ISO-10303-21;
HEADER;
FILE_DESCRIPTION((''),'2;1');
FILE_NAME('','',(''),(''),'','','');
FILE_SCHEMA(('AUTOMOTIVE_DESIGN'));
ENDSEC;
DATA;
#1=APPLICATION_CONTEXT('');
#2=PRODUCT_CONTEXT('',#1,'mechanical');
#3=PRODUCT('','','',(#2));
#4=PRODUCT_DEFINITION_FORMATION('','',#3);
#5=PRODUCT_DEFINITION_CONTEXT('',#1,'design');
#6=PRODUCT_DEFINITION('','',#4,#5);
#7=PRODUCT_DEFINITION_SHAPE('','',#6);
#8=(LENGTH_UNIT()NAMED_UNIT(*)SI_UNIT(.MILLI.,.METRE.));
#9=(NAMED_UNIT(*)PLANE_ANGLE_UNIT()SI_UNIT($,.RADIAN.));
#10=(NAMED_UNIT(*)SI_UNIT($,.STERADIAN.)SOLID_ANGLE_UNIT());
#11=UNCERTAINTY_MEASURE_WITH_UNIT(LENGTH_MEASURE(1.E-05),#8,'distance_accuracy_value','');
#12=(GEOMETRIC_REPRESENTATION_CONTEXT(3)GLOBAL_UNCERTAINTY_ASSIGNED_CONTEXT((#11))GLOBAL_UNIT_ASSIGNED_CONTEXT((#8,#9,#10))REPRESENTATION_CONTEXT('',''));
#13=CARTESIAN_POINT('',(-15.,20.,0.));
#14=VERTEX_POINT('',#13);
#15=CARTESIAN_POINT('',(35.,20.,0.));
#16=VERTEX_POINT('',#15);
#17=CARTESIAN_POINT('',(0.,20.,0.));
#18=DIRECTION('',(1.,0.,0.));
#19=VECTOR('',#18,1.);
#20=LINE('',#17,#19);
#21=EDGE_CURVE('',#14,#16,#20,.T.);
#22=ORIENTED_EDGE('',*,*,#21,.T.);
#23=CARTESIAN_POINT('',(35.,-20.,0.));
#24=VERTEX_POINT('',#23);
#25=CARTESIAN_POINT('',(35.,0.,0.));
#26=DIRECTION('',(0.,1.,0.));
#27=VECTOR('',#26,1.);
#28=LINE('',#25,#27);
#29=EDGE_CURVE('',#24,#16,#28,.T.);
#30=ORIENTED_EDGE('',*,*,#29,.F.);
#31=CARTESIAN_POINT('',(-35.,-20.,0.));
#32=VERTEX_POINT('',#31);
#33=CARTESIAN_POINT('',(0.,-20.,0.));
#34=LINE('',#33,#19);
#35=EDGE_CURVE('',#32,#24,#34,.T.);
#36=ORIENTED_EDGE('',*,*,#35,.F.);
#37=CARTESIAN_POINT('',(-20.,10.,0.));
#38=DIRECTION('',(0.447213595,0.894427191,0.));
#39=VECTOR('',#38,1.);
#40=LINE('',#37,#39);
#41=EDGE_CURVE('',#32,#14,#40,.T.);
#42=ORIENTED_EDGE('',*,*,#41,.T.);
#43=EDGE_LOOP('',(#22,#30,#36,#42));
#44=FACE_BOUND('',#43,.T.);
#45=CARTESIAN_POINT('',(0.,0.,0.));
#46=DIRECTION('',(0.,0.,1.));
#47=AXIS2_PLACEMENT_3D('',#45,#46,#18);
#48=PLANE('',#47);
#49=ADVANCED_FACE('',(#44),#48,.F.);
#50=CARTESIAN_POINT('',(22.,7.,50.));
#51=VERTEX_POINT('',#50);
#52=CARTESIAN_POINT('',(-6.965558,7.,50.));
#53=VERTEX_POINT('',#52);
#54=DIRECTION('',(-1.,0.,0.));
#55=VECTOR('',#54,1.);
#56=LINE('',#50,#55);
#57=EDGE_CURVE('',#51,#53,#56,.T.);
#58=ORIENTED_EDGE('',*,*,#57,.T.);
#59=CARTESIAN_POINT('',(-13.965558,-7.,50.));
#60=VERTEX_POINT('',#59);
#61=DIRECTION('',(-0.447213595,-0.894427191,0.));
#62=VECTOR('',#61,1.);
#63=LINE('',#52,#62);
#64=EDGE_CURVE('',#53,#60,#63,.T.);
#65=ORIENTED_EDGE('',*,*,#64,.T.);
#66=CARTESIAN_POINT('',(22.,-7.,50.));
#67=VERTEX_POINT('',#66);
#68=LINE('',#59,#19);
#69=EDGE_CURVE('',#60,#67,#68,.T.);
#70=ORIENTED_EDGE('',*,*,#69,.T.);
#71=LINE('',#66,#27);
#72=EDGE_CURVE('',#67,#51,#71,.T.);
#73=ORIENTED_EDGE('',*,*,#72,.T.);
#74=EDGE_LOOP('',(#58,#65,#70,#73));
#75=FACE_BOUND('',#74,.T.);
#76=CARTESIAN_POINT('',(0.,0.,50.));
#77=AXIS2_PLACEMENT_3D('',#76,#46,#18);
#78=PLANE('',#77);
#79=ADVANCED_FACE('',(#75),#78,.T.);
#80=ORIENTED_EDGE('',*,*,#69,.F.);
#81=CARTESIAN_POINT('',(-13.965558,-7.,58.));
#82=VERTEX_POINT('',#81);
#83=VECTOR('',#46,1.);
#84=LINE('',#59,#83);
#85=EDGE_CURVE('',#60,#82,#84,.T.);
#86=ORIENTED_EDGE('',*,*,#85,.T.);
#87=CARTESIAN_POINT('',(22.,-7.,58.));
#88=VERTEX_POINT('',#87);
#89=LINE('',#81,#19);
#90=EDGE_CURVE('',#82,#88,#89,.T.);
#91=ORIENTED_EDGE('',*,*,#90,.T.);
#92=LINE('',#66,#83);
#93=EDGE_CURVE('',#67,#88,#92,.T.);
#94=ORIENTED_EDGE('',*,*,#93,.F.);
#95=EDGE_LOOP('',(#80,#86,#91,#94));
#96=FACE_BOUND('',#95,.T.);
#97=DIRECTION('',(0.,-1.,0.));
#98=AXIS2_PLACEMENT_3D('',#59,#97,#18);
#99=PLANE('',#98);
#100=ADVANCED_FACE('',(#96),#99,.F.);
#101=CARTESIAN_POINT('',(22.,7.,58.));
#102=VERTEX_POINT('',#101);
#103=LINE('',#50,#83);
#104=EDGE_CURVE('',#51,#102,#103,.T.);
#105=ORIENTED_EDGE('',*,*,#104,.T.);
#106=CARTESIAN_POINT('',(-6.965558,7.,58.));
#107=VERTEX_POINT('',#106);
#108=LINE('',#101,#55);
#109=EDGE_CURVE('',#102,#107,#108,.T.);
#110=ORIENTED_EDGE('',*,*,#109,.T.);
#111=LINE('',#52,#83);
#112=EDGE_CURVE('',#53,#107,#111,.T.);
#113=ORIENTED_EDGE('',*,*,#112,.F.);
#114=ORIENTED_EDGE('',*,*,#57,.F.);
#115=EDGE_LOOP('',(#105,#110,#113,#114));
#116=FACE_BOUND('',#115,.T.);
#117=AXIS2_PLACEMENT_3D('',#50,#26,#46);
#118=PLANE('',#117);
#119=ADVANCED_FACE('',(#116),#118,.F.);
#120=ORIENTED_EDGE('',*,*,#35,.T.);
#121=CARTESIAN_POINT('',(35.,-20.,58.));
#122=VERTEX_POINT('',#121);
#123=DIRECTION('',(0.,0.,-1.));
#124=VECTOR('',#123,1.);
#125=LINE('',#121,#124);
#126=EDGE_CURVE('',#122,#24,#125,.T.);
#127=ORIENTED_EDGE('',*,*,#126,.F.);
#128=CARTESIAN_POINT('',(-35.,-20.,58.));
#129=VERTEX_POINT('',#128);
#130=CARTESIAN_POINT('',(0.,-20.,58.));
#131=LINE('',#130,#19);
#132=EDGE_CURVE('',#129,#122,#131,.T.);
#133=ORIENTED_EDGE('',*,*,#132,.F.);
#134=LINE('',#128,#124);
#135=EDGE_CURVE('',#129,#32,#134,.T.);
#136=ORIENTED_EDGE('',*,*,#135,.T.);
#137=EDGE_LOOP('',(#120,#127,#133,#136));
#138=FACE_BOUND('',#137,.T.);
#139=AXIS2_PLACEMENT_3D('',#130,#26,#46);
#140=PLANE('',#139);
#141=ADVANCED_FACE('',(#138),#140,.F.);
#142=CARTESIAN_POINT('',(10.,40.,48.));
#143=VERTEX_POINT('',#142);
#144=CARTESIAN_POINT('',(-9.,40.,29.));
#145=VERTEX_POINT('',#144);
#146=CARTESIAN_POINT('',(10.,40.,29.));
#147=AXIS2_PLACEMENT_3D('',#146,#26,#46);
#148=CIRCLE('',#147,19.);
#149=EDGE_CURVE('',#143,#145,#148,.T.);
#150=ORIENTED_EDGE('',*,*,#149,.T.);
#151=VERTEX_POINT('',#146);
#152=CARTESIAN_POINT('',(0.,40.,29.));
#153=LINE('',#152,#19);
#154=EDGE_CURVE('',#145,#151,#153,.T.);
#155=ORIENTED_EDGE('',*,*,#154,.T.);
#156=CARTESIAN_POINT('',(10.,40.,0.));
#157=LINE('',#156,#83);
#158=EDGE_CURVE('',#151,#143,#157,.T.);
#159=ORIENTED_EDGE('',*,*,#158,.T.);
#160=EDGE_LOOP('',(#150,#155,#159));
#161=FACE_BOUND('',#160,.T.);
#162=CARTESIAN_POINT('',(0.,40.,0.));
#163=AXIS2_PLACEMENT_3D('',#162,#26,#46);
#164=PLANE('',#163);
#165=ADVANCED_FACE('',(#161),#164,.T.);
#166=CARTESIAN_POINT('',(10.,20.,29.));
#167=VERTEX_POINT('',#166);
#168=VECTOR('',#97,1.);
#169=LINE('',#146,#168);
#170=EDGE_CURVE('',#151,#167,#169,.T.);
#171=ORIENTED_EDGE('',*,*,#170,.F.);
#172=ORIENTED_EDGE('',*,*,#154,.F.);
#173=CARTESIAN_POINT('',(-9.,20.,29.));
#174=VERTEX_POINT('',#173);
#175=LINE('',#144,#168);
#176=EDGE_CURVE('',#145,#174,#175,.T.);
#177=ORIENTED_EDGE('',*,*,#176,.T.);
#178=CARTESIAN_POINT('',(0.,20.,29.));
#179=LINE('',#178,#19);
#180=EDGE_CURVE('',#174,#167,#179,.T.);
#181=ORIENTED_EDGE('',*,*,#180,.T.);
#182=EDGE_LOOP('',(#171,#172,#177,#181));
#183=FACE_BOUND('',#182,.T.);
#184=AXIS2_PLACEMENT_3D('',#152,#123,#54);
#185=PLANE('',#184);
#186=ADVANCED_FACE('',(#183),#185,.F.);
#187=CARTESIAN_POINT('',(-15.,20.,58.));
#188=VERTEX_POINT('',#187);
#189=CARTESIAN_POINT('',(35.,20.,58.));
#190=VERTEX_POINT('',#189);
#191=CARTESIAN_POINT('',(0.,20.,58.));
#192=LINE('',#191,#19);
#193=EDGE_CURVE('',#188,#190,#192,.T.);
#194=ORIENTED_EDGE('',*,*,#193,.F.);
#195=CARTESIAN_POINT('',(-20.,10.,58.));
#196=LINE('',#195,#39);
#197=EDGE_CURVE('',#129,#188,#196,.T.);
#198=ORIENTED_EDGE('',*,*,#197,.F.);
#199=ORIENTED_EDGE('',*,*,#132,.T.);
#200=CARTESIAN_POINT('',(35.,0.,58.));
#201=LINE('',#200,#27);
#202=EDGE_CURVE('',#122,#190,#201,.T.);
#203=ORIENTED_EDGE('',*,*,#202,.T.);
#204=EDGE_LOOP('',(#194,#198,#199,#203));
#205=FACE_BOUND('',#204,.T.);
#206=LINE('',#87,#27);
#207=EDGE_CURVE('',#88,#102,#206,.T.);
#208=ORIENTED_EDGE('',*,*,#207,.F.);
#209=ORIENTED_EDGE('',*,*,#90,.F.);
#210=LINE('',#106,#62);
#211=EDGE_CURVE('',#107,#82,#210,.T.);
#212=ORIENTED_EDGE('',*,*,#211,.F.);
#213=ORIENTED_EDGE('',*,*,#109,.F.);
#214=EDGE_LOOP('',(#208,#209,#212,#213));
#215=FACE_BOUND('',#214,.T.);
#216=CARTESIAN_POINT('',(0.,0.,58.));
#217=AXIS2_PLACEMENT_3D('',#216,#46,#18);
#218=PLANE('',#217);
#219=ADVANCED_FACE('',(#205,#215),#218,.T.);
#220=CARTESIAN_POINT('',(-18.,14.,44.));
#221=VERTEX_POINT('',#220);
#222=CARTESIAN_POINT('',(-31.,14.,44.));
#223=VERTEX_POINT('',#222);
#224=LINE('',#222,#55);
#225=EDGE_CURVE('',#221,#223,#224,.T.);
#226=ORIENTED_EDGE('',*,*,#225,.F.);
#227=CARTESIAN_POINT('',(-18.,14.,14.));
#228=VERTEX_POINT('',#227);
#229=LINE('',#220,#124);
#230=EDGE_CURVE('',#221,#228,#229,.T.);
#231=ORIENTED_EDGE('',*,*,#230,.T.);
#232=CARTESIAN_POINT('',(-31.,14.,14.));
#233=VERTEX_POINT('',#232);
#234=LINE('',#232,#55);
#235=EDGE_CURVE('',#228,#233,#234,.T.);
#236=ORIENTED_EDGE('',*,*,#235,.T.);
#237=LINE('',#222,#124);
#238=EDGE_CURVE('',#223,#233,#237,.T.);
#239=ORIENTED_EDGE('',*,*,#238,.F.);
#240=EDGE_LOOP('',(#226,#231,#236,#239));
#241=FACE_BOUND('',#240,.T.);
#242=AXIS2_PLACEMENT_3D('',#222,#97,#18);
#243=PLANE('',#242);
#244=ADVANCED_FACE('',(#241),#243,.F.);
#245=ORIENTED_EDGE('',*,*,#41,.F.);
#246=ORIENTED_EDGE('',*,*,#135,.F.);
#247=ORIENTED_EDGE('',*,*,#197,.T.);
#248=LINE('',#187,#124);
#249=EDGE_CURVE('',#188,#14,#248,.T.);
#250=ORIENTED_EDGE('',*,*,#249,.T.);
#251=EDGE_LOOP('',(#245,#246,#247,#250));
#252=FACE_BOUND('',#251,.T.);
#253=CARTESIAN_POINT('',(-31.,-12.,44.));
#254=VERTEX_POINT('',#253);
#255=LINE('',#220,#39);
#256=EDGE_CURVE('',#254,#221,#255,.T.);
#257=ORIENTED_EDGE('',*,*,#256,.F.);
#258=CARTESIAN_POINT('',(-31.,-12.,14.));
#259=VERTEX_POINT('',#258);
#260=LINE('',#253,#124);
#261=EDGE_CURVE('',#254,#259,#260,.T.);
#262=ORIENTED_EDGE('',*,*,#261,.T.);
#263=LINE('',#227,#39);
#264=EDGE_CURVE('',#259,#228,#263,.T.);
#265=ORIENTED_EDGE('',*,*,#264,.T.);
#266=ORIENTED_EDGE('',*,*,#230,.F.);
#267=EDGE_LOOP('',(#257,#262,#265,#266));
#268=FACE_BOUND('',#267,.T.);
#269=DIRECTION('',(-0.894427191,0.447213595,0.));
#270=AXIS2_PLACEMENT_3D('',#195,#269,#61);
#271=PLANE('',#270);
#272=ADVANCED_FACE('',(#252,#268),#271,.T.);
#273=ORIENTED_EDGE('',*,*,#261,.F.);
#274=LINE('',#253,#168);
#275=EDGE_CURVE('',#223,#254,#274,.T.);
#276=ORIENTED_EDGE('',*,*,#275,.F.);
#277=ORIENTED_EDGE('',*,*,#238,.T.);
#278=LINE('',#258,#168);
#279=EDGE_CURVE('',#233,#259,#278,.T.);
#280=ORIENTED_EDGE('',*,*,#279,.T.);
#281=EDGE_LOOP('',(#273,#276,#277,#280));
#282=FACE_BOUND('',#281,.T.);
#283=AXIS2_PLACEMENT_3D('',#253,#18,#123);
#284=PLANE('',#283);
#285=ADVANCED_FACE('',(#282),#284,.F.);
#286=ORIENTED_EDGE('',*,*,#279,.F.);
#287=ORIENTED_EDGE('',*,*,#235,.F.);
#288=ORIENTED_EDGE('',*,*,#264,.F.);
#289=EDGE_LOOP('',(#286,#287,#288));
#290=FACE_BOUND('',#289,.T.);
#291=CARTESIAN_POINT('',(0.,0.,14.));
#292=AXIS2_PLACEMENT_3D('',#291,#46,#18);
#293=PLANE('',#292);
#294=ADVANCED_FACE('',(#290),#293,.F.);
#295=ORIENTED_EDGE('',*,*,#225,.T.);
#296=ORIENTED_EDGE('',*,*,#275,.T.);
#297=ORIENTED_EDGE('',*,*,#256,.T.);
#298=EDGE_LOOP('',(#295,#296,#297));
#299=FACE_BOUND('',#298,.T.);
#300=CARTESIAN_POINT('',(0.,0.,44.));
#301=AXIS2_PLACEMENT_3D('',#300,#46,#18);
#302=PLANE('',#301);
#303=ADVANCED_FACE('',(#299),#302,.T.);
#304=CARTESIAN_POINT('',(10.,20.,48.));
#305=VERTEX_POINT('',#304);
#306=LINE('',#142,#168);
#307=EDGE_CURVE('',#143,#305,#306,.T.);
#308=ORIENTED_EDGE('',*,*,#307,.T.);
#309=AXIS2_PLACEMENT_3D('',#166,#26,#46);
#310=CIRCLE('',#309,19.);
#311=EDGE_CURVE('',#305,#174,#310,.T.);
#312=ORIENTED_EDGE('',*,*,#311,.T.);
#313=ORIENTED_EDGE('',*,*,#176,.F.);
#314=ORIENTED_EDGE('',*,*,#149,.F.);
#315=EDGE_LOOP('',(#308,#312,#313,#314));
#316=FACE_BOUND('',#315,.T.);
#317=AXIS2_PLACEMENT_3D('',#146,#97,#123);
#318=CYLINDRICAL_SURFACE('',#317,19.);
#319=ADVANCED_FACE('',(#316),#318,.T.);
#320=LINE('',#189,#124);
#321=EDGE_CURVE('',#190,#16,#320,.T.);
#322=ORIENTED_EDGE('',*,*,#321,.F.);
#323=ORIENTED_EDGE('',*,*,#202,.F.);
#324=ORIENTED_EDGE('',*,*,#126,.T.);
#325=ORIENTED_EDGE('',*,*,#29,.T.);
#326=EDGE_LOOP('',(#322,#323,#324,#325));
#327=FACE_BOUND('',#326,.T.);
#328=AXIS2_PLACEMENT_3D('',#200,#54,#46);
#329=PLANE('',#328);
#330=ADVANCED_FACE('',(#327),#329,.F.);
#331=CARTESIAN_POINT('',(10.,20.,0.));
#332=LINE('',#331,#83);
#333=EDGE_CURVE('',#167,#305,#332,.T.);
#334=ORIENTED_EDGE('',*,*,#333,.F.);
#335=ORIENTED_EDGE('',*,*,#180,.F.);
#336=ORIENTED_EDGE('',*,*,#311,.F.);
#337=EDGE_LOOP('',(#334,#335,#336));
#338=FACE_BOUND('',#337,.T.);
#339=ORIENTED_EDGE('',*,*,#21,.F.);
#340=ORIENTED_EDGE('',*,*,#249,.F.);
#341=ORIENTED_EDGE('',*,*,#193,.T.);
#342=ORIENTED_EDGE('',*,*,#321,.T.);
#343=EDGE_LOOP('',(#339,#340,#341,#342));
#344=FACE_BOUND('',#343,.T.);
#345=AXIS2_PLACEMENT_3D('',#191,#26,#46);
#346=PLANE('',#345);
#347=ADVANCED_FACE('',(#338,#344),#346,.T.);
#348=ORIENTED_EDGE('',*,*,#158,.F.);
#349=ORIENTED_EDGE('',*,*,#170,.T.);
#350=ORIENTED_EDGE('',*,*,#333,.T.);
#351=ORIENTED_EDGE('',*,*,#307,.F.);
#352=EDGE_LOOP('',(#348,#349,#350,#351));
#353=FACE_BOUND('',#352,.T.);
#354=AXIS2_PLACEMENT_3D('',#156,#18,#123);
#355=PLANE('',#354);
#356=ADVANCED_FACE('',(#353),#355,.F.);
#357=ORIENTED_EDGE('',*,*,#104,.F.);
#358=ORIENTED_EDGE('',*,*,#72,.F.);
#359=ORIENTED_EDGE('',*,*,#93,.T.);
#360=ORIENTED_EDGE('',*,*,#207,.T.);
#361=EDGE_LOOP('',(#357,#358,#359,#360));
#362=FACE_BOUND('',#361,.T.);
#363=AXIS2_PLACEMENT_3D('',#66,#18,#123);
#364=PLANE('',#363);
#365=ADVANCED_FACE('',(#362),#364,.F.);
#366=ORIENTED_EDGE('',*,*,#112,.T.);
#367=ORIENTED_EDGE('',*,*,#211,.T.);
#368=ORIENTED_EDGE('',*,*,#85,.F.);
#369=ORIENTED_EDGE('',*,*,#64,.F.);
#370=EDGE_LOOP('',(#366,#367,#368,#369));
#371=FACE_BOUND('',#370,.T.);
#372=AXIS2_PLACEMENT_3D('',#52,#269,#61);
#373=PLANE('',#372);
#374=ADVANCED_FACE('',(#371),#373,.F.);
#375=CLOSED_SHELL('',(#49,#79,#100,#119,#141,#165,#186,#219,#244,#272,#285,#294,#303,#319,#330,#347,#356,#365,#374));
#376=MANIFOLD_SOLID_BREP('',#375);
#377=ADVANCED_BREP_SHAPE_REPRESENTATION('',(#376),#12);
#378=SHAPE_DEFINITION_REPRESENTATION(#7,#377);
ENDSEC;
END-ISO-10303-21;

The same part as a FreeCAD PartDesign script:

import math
import FreeCAD as App
import Part
import Sketcher
from FreeCAD import Vector


def add_polygon(sketch, points):
    """Adds a closed chain of lines whose ends are joined by coincident constraints."""
    first, n = sketch.GeometryCount, len(points)
    for a, b in zip(points, points[1:] + points[:1]):
        sketch.addGeometry(Part.LineSegment(App.Vector(*a, 0), App.Vector(*b, 0)), False)
    for i in range(n):
        sketch.addConstraint(Sketcher.Constraint("Coincident", first + i, 2, first + (i + 1) % n, 1))

doc = App.newDocument("Part")
body = doc.addObject("PartDesign::Body", "Body")

sketch1 = doc.addObject("Sketcher::SketchObject", "Sketch")
body.addObject(sketch1)
sketch1.AttachmentSupport = (doc.XY_Plane, [""])
sketch1.MapMode = "FlatFace"
add_polygon(sketch1, [(-15, 20), (-35, -20), (35, -20), (35, 20)])
sketch1.addConstraint(Sketcher.Constraint("Horizontal", 1))
sketch1.addConstraint(Sketcher.Constraint("Vertical", 2))
sketch1.addConstraint(Sketcher.Constraint("Horizontal", 3))
sketch1.addConstraint(Sketcher.Constraint("Symmetric", 0, 2, 2, 2, -1, 1))
sketch1.addConstraint(Sketcher.Constraint("DistanceX", 1, 1, 1, 2, 70.0))
sketch1.addConstraint(Sketcher.Constraint("DistanceX", 3, 2, 3, 1, 50.0))
sketch1.addConstraint(Sketcher.Constraint("DistanceY", 2, 1, 2, 2, 40.0))
pad1 = doc.addObject("PartDesign::Pad", "Pad")
body.addObject(pad1)
pad1.Profile = sketch1
pad1.Length = 58

sketch2 = doc.addObject("Sketcher::SketchObject", "Sketch001")
body.addObject(sketch2)
sketch2.AttachmentSupport = (doc.XZ_Plane, [""])
sketch2.MapMode = "FlatFace"
sketch2.AttachmentOffset = App.Placement(Vector(0, 0, -20), App.Rotation())
sketch2.addGeometry(Part.LineSegment(Vector(10, 29, 0), Vector(10, 48, 0)), False)
sketch2.addGeometry(Part.ArcOfCircle(Part.Circle(Vector(10, 29, 0), Vector(0, 0, 1), 19), math.radians(0), math.radians(90)), False)
sketch2.addGeometry(Part.ArcOfCircle(Part.Circle(Vector(10, 29, 0), Vector(0, 0, 1), 19), math.radians(180), math.radians(360)), False)
sketch2.addGeometry(Part.LineSegment(Vector(-9, 29, 0), Vector(10, 29, 0)), False)
sketch2.addConstraint(Sketcher.Constraint("Coincident", 0, 2, 1, 2))
sketch2.addConstraint(Sketcher.Constraint("Tangent", 1, 1, 2, 2))
sketch2.addConstraint(Sketcher.Constraint("Coincident", 2, 1, 3, 1))
sketch2.addConstraint(Sketcher.Constraint("Coincident", 3, 2, 0, 1))
sketch2.addConstraint(Sketcher.Constraint("Vertical", 0))
sketch2.addConstraint(Sketcher.Constraint("Horizontal", 3))
sketch2.addConstraint(Sketcher.Constraint("Coincident", 3, 2, 1, 3))
sketch2.addConstraint(Sketcher.Constraint("Equal", 1, 2))
sketch2.addConstraint(Sketcher.Constraint("Horizontal", 2, 3, 1, 1))
sketch2.addConstraint(Sketcher.Constraint("Radius", 1, 19.0))
sketch2.addConstraint(Sketcher.Constraint("DistanceX", -1, 1, 1, 3, 10.0))
sketch2.addConstraint(Sketcher.Constraint("DistanceY", -1, 1, 1, 3, 29.0))
pad2 = doc.addObject("PartDesign::Pad", "Pad001")
body.addObject(pad2)
pad2.Profile = sketch2
pad2.Length = 20
pad2.Reversed = True

sketch3 = doc.addObject("Sketcher::SketchObject", "Sketch002")
body.addObject(sketch3)
sketch3.AttachmentSupport = (doc.XY_Plane, [""])
sketch3.MapMode = "FlatFace"
sketch3.AttachmentOffset = App.Placement(Vector(0, 0, 58), App.Rotation())
add_polygon(sketch3, [(22, -7), (22, 7), (-7, 7), (-14, -7)])
sketch3.addConstraint(Sketcher.Constraint("Vertical", 0))
sketch3.addConstraint(Sketcher.Constraint("Horizontal", 1))
sketch3.addConstraint(Sketcher.Constraint("Horizontal", 3))
sketch3.addConstraint(Sketcher.Constraint("DistanceY", 0, 1, 0, 2, 14.0))
sketch3.addConstraint(Sketcher.Constraint("DistanceX", -1, 1, 0, 2, 22.0))
sketch3.addConstraint(Sketcher.Constraint("DistanceY", -1, 1, 0, 2, 7.0))
sketch3.addConstraint(Sketcher.Constraint("DistanceX", 2, 2, 1, 2, 7.0))
sketch3.addConstraint(Sketcher.Constraint("DistanceX", 1, 2, 1, 1, 28.965558))
pocket1 = doc.addObject("PartDesign::Pocket", "Pocket")
body.addObject(pocket1)
pocket1.Profile = sketch3
pocket1.Length = 8

sketch4 = doc.addObject("Sketcher::SketchObject", "Sketch003")
body.addObject(sketch4)
sketch4.AttachmentSupport = (doc.XY_Plane, [""])
sketch4.MapMode = "FlatFace"
sketch4.AttachmentOffset = App.Placement(Vector(0, 0, 29), App.Rotation())
add_polygon(sketch4, [(-31, 14), (-31, -12), (-18, 14)])
sketch4.addConstraint(Sketcher.Constraint("Vertical", 0))
sketch4.addConstraint(Sketcher.Constraint("Horizontal", 2))
sketch4.addConstraint(Sketcher.Constraint("DistanceX", 2, 2, 2, 1, 13.0))
sketch4.addConstraint(Sketcher.Constraint("DistanceY", 0, 2, 0, 1, 26.0))
sketch4.addConstraint(Sketcher.Constraint("DistanceX", 0, 2, -1, 1, 31.0))
sketch4.addConstraint(Sketcher.Constraint("DistanceY", 0, 2, -1, 1, 12.0))
pad3 = doc.addObject("PartDesign::Pad", "Pad002")
body.addObject(pad3)
pad3.Profile = sketch4
pad3.Type = "TwoLengths"
pad3.Length = 15
pad3.Length2 = 15

doc.recompute()
